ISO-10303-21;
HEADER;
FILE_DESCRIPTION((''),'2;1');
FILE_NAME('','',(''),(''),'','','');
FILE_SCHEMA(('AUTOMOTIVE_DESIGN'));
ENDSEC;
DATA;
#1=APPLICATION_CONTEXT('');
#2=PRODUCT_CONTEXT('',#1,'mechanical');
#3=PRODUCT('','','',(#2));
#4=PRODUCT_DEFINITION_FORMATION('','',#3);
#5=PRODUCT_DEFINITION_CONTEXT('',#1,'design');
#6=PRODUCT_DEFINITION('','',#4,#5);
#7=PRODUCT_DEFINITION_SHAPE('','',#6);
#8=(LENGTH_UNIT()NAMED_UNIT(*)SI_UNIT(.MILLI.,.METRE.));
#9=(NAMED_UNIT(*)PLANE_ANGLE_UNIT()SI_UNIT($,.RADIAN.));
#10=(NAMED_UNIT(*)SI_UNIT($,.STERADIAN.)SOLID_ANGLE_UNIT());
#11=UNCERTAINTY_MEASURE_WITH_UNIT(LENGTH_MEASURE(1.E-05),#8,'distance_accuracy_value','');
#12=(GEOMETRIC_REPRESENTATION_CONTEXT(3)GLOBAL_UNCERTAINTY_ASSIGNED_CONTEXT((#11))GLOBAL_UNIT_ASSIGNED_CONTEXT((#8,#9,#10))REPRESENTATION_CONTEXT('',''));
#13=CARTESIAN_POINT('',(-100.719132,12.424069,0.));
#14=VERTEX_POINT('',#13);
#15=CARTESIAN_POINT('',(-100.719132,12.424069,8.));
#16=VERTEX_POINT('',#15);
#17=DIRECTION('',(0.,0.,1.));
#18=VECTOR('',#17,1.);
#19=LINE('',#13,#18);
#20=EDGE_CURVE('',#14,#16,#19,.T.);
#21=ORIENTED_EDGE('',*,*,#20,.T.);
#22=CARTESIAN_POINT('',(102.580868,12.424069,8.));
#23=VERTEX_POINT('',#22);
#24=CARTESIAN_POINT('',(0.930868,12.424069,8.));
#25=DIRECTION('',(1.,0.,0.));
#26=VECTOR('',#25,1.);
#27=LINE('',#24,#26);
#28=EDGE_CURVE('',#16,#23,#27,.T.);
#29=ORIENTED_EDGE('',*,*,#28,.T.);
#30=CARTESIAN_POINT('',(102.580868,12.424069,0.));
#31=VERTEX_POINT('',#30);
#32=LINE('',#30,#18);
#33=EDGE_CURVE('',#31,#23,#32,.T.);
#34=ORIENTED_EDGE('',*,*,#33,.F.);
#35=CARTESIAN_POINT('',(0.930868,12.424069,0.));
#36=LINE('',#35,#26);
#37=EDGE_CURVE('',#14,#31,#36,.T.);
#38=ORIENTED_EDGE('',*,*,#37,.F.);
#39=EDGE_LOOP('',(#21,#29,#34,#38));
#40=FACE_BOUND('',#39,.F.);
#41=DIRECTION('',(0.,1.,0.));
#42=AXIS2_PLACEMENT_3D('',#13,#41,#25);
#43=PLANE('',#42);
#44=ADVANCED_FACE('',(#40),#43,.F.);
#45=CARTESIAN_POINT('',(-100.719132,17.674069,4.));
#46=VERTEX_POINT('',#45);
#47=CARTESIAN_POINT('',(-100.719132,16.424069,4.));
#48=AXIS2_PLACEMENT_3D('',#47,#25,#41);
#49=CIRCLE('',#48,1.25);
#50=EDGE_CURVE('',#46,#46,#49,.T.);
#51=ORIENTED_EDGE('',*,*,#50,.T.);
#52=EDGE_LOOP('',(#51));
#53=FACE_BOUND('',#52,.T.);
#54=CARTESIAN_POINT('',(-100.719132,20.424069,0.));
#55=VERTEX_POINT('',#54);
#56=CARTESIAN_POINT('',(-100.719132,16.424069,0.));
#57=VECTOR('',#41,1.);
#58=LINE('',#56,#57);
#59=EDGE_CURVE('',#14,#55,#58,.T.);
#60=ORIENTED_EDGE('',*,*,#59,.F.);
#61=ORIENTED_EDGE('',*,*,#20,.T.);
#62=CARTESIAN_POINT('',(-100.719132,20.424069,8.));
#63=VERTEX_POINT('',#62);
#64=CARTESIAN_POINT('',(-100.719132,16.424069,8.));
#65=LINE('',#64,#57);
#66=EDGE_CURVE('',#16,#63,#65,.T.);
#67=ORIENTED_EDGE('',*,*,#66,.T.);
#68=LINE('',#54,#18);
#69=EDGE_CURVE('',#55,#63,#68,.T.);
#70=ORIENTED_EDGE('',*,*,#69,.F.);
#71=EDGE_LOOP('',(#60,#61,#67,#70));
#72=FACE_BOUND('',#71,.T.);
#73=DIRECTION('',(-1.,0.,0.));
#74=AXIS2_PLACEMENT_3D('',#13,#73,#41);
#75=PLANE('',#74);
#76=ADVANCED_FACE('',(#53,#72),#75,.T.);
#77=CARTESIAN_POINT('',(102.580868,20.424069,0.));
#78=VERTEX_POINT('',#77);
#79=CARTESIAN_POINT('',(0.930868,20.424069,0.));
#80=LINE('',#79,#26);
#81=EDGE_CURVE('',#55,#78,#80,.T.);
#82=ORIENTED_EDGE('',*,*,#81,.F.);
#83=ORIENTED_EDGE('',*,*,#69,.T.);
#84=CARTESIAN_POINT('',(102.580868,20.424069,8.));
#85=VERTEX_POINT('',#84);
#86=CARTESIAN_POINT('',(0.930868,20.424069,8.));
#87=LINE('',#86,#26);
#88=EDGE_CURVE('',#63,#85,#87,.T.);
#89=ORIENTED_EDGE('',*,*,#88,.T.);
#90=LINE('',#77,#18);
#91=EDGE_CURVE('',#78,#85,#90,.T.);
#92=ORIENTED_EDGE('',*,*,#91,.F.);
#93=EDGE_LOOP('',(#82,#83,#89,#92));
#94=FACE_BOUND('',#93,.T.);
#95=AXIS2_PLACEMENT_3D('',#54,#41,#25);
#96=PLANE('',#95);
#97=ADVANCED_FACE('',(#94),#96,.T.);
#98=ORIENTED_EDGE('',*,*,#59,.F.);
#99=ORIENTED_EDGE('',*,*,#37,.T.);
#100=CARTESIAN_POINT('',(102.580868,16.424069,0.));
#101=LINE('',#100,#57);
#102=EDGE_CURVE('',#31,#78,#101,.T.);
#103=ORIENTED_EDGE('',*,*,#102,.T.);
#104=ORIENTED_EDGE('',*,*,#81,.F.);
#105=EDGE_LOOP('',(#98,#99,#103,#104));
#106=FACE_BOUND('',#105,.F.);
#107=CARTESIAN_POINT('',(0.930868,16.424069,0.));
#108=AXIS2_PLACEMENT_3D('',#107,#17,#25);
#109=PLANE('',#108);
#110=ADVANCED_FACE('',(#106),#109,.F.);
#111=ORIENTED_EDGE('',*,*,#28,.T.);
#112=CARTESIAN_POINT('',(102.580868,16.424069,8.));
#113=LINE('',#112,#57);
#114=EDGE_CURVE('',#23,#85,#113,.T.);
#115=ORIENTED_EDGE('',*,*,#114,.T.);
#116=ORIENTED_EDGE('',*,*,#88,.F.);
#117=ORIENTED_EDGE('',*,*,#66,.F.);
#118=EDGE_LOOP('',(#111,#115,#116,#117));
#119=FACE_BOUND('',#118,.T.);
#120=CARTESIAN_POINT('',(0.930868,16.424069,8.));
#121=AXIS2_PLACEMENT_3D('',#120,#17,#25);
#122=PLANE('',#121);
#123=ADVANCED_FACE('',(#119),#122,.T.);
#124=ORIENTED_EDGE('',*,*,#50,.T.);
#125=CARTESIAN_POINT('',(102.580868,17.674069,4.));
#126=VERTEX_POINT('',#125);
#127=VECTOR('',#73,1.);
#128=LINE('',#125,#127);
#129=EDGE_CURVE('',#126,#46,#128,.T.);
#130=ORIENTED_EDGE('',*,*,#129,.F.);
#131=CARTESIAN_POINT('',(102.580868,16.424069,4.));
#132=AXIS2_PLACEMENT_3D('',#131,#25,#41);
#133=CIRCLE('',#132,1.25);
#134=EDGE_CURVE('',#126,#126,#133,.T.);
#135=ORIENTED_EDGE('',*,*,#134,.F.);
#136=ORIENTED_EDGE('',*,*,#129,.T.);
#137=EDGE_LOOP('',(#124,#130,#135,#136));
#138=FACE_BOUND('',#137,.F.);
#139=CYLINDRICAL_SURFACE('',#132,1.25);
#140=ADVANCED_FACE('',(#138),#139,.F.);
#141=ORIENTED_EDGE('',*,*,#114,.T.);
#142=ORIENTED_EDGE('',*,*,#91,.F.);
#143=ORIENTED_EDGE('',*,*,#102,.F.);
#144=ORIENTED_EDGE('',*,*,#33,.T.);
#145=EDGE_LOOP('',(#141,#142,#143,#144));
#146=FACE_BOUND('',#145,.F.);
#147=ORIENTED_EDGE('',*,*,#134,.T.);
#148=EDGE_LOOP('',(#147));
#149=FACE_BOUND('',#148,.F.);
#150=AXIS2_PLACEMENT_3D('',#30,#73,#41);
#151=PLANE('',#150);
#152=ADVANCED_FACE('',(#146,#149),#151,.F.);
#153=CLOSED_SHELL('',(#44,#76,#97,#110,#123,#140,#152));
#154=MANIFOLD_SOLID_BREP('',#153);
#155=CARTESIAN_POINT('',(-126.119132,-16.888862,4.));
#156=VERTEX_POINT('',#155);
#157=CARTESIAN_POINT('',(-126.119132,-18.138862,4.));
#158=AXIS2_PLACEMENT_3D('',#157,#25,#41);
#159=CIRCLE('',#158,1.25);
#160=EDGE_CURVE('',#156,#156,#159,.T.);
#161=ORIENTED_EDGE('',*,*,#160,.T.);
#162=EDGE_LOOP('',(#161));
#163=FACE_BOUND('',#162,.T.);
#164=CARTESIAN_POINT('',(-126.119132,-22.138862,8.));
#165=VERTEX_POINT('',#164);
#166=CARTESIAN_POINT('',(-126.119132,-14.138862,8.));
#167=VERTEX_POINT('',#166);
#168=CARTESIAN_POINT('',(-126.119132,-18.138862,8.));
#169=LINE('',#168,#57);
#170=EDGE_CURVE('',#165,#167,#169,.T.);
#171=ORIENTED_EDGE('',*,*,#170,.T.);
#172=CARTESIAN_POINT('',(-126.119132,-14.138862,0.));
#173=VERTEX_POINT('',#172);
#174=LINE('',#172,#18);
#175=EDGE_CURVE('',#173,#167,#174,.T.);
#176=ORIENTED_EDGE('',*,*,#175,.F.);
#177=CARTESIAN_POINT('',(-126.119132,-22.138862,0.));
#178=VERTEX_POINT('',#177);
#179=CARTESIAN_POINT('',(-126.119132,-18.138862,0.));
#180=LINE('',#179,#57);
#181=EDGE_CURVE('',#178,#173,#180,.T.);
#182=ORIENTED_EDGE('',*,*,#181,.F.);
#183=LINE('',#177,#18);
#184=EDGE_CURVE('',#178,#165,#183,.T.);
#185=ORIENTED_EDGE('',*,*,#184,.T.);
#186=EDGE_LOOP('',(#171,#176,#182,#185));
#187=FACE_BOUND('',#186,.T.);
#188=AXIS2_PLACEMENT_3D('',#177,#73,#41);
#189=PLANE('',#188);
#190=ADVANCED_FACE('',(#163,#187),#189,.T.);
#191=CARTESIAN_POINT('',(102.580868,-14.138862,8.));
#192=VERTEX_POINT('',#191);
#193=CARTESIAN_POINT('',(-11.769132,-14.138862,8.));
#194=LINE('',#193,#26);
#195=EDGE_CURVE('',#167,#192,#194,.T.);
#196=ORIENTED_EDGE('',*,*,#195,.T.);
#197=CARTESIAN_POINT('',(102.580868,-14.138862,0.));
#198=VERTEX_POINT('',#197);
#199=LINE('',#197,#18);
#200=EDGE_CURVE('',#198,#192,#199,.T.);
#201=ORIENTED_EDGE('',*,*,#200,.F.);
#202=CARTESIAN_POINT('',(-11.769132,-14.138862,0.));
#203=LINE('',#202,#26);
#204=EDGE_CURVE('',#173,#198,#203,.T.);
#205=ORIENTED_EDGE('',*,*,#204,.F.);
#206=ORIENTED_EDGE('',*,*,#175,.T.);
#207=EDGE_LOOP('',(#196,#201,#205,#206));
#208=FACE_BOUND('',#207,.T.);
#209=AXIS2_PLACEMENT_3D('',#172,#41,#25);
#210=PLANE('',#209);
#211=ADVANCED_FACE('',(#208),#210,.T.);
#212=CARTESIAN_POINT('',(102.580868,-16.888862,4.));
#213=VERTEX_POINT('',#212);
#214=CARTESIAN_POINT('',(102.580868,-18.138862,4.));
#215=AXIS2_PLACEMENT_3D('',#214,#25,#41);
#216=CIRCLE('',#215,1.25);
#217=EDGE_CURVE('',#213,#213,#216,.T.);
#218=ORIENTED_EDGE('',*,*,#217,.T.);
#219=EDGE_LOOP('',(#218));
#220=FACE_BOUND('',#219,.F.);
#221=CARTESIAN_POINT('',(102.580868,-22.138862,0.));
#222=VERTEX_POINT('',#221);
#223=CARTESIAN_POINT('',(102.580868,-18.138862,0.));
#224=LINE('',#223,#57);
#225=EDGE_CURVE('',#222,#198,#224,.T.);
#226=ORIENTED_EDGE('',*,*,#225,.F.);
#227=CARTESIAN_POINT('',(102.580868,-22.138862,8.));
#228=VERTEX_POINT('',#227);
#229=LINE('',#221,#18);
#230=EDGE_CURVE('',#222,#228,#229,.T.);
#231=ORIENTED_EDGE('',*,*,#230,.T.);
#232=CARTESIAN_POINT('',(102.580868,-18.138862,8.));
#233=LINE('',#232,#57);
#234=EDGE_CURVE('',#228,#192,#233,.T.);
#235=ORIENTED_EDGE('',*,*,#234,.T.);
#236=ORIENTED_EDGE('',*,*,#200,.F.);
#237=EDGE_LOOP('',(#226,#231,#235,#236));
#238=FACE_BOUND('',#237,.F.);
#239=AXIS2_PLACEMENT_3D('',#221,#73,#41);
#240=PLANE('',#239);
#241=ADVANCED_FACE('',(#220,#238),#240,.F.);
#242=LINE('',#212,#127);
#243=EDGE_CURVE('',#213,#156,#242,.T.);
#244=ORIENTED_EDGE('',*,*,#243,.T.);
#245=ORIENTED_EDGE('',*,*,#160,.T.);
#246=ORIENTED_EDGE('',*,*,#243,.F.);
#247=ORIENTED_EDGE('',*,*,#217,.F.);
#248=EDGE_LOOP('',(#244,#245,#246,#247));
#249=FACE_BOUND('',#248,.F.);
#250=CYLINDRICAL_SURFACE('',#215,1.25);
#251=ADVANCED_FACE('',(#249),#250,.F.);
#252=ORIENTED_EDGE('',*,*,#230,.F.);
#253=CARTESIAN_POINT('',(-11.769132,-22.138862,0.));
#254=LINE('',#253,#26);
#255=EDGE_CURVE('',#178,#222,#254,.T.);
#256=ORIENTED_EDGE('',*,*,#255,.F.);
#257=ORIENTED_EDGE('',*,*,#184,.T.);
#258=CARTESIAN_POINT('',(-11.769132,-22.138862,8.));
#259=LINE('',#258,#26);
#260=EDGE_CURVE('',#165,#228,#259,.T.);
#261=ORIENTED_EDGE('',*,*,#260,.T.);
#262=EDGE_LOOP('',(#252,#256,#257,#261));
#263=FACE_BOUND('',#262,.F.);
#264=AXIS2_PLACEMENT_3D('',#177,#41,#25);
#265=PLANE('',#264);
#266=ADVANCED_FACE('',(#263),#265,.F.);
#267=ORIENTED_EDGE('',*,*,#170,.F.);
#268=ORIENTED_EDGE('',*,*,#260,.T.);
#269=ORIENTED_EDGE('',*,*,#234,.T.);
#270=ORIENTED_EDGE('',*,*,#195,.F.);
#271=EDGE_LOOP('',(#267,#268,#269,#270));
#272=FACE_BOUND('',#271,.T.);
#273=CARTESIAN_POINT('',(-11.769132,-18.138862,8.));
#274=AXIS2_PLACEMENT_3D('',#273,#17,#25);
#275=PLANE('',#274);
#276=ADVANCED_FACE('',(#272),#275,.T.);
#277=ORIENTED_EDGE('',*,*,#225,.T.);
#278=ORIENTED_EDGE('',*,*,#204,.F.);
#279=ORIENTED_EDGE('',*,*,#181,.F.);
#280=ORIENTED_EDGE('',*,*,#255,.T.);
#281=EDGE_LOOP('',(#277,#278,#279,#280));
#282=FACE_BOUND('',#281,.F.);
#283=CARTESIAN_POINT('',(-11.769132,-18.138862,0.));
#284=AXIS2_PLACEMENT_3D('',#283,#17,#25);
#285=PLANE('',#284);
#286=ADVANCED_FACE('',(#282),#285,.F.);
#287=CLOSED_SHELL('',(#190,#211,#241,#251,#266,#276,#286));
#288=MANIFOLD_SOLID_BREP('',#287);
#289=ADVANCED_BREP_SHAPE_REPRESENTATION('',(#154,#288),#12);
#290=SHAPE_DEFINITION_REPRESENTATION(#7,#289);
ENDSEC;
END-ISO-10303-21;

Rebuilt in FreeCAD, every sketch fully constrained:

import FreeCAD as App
import Part
import Sketcher
from FreeCAD import Vector
Q = App.Units.Quantity


def add_polygon(sketch, points):
    """Adds a closed chain of lines whose ends are joined by coincident constraints."""
    first, n = sketch.GeometryCount, len(points)
    for a, b in zip(points, points[1:] + points[:1]):
        sketch.addGeometry(Part.LineSegment(App.Vector(*a, 0), App.Vector(*b, 0)), False)
    for i in range(n):
        sketch.addConstraint(Sketcher.Constraint("Coincident", first + i, 2, first + (i + 1) % n, 1))

doc = App.newDocument("Part")
body = doc.addObject("PartDesign::Body", "Body")
body.AllowCompound = True

sketch1 = body.newObject("Sketcher::SketchObject", "Sketch")
sketch1.AttachmentSupport = (doc.getObject("XY_Plane"), [""])
sketch1.MapMode = "FlatFace"
add_polygon(sketch1, [(-101, 20), (-101, 12), (103, 12), (103, 20)])
add_polygon(sketch1, [(-126, -14), (-126, -22), (103, -22), (103, -14)])
sketch1.addConstraint(Sketcher.Constraint("Vertical", 0))
sketch1.addConstraint(Sketcher.Constraint("Horizontal", 1))
sketch1.addConstraint(Sketcher.Constraint("Vertical", 2))
sketch1.addConstraint(Sketcher.Constraint("Horizontal", 3))
sketch1.addConstraint(Sketcher.Constraint("Vertical", 4))
sketch1.addConstraint(Sketcher.Constraint("Horizontal", 5))
sketch1.addConstraint(Sketcher.Constraint("Vertical", 6))
sketch1.addConstraint(Sketcher.Constraint("Horizontal", 7))
sketch1.addConstraint(Sketcher.Constraint("Vertical", 2, 2, 5, 2))
sketch1.addConstraint(Sketcher.Constraint("Equal", 2, 4))
sketch1.addConstraint(Sketcher.Constraint("DistanceY", 0, 2, 0, 1, Q("8 mm")))
sketch1.addConstraint(Sketcher.Constraint("DistanceX", 1, 1, 1, 2, Q("203.3 mm")))
sketch1.addConstraint(Sketcher.Constraint("DistanceX", 5, 1, 5, 2, Q("228.7 mm")))
sketch1.addConstraint(Sketcher.Constraint("DistanceX", 0, 2, -1, 1, Q("100.719132 mm")))
sketch1.addConstraint(Sketcher.Constraint("DistanceY", -1, 1, 0, 2, Q("12.424069 mm")))
sketch1.addConstraint(Sketcher.Constraint("DistanceY", 4, 2, -1, 1, Q("22.138862 mm")))
pad1 = body.newObject("PartDesign::Pad", "Pad")
pad1.Profile = sketch1
pad1.Length = 8

sketch2 = body.newObject("Sketcher::SketchObject", "Sketch001")
sketch2.AttachmentSupport = (doc.getObject("YZ_Plane"), [""])
sketch2.MapMode = "FlatFace"
sketch2.AttachmentOffset = App.Placement(Vector(0, 0, 102.580868), App.Rotation())
sketch2.addGeometry(Part.Circle(Vector(16.4, 4, 0), Vector(0, 0, 1), 1.2), False)
sketch2.addGeometry(Part.Circle(Vector(-18.1, 4, 0), Vector(0, 0, 1), 1.2), False)
sketch2.addConstraint(Sketcher.Constraint("Equal", 0, 1))
sketch2.addConstraint(Sketcher.Constraint("Horizontal", 0, 3, 1, 3))
sketch2.addConstraint(Sketcher.Constraint("Diameter", 0, Q("2.5 mm")))
sketch2.addConstraint(Sketcher.Constraint("DistanceY", -1, 1, 0, 3, Q("4 mm")))
sketch2.addConstraint(Sketcher.Constraint("DistanceX", -1, 1, 0, 3, Q("16.424069 mm")))
sketch2.addConstraint(Sketcher.Constraint("DistanceX", 1, 3, -1, 1, Q("18.138862 mm")))
pocket1 = body.newObject("PartDesign::Pocket", "Pocket")
pocket1.Profile = sketch2
pocket1.Type = "ThroughAll"

doc.recompute()
